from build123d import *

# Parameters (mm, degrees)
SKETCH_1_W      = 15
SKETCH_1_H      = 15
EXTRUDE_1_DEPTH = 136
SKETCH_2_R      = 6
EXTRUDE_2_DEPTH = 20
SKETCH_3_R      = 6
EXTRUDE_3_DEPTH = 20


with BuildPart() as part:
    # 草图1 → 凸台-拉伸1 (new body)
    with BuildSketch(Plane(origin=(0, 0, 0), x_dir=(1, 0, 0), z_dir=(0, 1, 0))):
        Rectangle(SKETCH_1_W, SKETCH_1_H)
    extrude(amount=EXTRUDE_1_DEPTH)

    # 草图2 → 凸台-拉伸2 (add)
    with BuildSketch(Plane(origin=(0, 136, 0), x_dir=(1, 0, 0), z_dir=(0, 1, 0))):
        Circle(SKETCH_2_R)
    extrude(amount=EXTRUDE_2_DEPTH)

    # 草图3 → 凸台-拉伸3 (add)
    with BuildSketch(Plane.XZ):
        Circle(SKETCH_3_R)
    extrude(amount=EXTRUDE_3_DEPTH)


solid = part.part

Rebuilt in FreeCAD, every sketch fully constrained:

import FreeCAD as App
import Part
import Sketcher

doc = App.newDocument("Part")
params = doc.addObject("Spreadsheet::Sheet", "Params")
for row, (alias, value) in enumerate([
    ("sketch1_width", "15 mm"),
    ("pad1_length", "136 mm"),
    ("sketch2_diameter", "12 mm"),
    ("pad2_length", "20 mm"),
    ("sketch3_diameter", "12 mm"),
    ("pad3_length", "20 mm"),
], start=1):
    params.set(f"A{row}", alias)
    params.set(f"B{row}", "=" + value)
    params.setAlias(f"B{row}", alias)

body = doc.addObject("PartDesign::Body", "Body")

# Sketch on XZ plane
sketch1 = body.newObject("Sketcher::SketchObject", "Sketch")
sketch1.AttachmentSupport = (doc.getObject("XZ_Plane"), [""])
sketch1.MapMode = "FlatFace"
sketch1.addGeometry(Part.LineSegment(App.Vector(-7.5, -7.5, 0), App.Vector(-7.5, 7.5, 0)), False)
sketch1.addGeometry(Part.LineSegment(App.Vector(-7.5, 7.5, 0), App.Vector(7.5, 7.5, 0)), False)
sketch1.addGeometry(Part.LineSegment(App.Vector(7.5, 7.5, 0), App.Vector(7.5, -7.5, 0)), False)
sketch1.addGeometry(Part.LineSegment(App.Vector(7.5, -7.5, 0), App.Vector(-7.5, -7.5, 0)), False)
sketch1.addConstraint(Sketcher.Constraint("Coincident", 0, 2, 1, 1))
sketch1.addConstraint(Sketcher.Constraint("Coincident", 1, 2, 2, 1))
sketch1.addConstraint(Sketcher.Constraint("Coincident", 2, 2, 3, 1))
sketch1.addConstraint(Sketcher.Constraint("Coincident", 3, 2, 0, 1))
sketch1.addConstraint(Sketcher.Constraint("Vertical", 0))
sketch1.addConstraint(Sketcher.Constraint("Horizontal", 1))
sketch1.addConstraint(Sketcher.Constraint("Vertical", 2))
sketch1.addConstraint(Sketcher.Constraint("Horizontal", 3))
sketch1.addConstraint(Sketcher.Constraint("Symmetric", 0, 2, 2, 2, -1, 1))
sketch1.addConstraint(Sketcher.Constraint("Equal", 3, 0))
sketch1.addConstraint(Sketcher.Constraint("DistanceX", 1, 1, 1, 2, 15.0))
sketch1.setExpression("Constraints[10]", "Params.sketch1_width")
pad1 = body.newObject("PartDesign::Pad", "Pad")
pad1.Profile = sketch1
pad1.setExpression("Length", "Params.pad1_length")
pad1.Reversed = True

# Sketch on XZ plane
sketch2 = body.newObject("Sketcher::SketchObject", "Sketch001")
sketch2.AttachmentSupport = (doc.getObject("XZ_Plane"), [""])
sketch2.MapMode = "FlatFace"
sketch2.AttachmentOffset = App.Placement(App.Vector(0, 0, -136), App.Rotation())
sketch2.addGeometry(Part.Circle(App.Vector(0, 0, 0), App.Vector(0, 0, 1), 6), False)
sketch2.addConstraint(Sketcher.Constraint("Coincident", 0, 3, -1, 1))
sketch2.addConstraint(Sketcher.Constraint("Diameter", 0, 12.0))
sketch2.setExpression("Constraints[1]", "Params.sketch2_diameter")
pad2 = body.newObject("PartDesign::Pad", "Pad001")
pad2.Profile = sketch2
pad2.setExpression("Length", "Params.pad2_length")
pad2.Reversed = True

# Sketch on XZ plane
sketch3 = body.newObject("Sketcher::SketchObject", "Sketch002")
sketch3.AttachmentSupport = (doc.getObject("XZ_Plane"), [""])
sketch3.MapMode = "FlatFace"
sketch3.addGeometry(Part.Circle(App.Vector(0, 0, 0), App.Vector(0, 0, 1), 6), False)
sketch3.addConstraint(Sketcher.Constraint("Coincident", 0, 3, -1, 1))
sketch3.addConstraint(Sketcher.Constraint("Diameter", 0, 12.0))
sketch3.setExpression("Constraints[1]", "Params.sketch3_diameter")
pad3 = body.newObject("PartDesign::Pad", "Pad002")
pad3.Profile = sketch3
pad3.setExpression("Length", "Params.pad3_length")

doc.recompute()
